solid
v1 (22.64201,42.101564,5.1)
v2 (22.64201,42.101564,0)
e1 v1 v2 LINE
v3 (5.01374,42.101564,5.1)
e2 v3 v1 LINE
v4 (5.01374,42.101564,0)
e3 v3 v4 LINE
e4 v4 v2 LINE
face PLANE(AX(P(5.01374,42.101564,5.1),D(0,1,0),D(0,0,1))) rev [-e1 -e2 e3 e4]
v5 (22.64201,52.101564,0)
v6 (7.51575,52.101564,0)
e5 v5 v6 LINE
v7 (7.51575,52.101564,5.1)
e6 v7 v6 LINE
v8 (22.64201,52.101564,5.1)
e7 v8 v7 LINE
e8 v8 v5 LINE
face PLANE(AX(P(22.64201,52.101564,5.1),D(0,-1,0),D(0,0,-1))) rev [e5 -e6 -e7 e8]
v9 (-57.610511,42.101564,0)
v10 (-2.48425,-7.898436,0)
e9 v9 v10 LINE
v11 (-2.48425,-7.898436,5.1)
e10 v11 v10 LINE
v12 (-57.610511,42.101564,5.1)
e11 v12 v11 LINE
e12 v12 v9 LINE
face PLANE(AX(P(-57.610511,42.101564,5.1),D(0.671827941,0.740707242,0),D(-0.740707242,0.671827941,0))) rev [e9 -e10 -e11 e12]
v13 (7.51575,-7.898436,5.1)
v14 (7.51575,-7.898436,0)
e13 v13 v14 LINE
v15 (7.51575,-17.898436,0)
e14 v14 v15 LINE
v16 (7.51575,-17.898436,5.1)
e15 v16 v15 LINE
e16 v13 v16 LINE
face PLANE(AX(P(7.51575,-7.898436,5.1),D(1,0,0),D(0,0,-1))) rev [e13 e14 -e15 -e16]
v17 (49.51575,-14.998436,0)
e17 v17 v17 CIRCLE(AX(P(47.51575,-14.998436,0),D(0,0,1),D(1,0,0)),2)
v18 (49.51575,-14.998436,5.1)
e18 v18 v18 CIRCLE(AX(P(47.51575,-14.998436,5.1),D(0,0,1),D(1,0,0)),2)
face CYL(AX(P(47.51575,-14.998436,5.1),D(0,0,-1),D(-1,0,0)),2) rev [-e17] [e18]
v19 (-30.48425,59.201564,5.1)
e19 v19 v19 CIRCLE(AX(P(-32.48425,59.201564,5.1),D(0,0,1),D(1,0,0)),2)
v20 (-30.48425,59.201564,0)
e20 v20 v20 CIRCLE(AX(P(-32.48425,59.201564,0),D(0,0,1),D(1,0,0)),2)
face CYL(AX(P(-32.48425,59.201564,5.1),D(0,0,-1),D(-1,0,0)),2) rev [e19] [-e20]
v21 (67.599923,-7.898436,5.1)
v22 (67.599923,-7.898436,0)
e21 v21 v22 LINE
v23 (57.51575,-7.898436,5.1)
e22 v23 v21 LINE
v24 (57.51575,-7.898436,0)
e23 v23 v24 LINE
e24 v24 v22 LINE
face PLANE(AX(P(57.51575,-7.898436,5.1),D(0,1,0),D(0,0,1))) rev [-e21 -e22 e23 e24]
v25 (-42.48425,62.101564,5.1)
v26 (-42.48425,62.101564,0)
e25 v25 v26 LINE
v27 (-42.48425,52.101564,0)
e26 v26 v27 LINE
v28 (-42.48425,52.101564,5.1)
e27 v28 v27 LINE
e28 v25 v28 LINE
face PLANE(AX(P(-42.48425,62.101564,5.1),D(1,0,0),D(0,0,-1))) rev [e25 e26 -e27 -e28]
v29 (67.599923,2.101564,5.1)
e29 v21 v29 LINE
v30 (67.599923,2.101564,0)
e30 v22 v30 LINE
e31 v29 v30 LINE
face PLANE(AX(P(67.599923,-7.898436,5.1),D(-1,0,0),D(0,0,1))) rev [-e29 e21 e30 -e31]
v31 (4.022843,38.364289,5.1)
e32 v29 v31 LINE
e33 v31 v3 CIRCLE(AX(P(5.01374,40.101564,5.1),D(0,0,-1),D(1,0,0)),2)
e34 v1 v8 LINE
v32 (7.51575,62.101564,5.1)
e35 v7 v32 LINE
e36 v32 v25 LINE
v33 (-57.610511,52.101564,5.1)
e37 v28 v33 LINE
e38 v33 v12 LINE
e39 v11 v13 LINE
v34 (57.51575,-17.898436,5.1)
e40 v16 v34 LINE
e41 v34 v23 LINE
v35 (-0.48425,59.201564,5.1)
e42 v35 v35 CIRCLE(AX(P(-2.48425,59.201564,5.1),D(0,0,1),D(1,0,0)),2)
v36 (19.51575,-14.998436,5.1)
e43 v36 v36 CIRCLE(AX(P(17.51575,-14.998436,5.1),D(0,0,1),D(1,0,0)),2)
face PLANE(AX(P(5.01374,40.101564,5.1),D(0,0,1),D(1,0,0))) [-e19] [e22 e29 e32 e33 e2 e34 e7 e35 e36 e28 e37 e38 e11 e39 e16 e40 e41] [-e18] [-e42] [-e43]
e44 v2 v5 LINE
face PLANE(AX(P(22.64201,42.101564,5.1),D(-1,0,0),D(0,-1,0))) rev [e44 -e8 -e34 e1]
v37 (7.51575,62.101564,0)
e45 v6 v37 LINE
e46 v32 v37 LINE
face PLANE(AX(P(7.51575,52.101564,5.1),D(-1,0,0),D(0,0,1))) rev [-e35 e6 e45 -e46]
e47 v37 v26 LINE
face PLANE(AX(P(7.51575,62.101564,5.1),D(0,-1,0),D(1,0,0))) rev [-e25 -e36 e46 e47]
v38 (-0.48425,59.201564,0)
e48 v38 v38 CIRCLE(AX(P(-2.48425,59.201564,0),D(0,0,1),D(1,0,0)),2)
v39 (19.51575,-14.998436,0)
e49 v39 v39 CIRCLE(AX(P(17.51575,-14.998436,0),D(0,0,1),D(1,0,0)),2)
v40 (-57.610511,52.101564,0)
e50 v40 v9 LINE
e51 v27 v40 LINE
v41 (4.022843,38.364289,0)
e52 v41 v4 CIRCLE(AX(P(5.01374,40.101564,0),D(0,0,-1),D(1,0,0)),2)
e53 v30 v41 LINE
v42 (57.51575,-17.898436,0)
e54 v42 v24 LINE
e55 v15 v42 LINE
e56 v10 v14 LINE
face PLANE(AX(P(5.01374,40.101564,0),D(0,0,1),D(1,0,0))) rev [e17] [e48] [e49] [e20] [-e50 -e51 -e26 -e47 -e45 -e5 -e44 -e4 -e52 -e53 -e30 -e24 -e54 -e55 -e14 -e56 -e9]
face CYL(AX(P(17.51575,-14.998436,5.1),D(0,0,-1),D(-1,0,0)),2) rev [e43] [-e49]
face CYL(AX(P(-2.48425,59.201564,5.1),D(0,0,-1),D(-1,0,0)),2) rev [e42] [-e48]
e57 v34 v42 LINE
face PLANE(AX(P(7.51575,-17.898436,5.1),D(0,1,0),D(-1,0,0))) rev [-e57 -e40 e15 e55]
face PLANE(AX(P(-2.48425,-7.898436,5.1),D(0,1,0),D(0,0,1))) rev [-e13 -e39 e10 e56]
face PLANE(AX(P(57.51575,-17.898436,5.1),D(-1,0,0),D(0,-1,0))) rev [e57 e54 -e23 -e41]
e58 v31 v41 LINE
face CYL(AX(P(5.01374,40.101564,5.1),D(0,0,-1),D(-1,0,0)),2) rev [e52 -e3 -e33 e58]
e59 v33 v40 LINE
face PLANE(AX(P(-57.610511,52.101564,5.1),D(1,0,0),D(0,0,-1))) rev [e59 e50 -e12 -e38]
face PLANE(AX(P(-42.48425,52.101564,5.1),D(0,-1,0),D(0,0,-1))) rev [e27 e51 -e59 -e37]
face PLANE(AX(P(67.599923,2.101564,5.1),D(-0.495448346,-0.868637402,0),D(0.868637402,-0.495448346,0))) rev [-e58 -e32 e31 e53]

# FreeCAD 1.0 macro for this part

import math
import FreeCAD as App
import Part
import Sketcher

doc = App.newDocument("Part")
body = doc.addObject("PartDesign::Body", "Body")

# Sketch on XY plane
sketch1 = doc.addObject("Sketcher::SketchObject", "Sketch")
body.addObject(sketch1)
sketch1.AttachmentSupport = (doc.XY_Plane, [""])
sketch1.MapMode = "FlatFace"
sketch1.addGeometry(Part.LineSegment(App.Vector(-42.48425, 62.101564, 0), App.Vector(-42.48425, 52.101564, 0)), False)
sketch1.addGeometry(Part.LineSegment(App.Vector(-42.48425, 52.101564, 0), App.Vector(-57.610511, 52.101564, 0)), False)
sketch1.addGeometry(Part.LineSegment(App.Vector(-57.610511, 52.101564, 0), App.Vector(-57.610511, 42.101564, 0)), False)
sketch1.addGeometry(Part.LineSegment(App.Vector(-57.610511, 42.101564, 0), App.Vector(-2.48425, -7.898436, 0)), False)
sketch1.addGeometry(Part.LineSegment(App.Vector(-2.48425, -7.898436, 0), App.Vector(7.51575, -7.898436, 0)), False)
sketch1.addGeometry(Part.LineSegment(App.Vector(7.51575, -7.898436, 0), App.Vector(7.51575, -17.898436, 0)), False)
sketch1.addGeometry(Part.LineSegment(App.Vector(7.51575, -17.898436, 0), App.Vector(57.51575, -17.898436, 0)), False)
sketch1.addGeometry(Part.LineSegment(App.Vector(57.51575, -17.898436, 0), App.Vector(57.51575, -7.898436, 0)), False)
sketch1.addGeometry(Part.LineSegment(App.Vector(57.51575, -7.898436, 0), App.Vector(67.599923, -7.898436, 0)), False)
sketch1.addGeometry(Part.LineSegment(App.Vector(67.599923, -7.898436, 0), App.Vector(67.599923, 2.101564, 0)), False)
sketch1.addGeometry(Part.LineSegment(App.Vector(67.599923, 2.101564, 0), App.Vector(4.022843, 38.364289, 0)), False)
sketch1.addGeometry(Part.ArcOfCircle(Part.Circle(App.Vector(5.01374, 40.101564, 0), App.Vector(0, 0, 1), 2), math.radians(90), math.radians(240.300681)), False)
sketch1.addGeometry(Part.LineSegment(App.Vector(5.01374, 42.101564, 0), App.Vector(22.64201, 42.101564, 0)), False)
sketch1.addGeometry(Part.LineSegment(App.Vector(22.64201, 42.101564, 0), App.Vector(22.64201, 52.101564, 0)), False)
sketch1.addGeometry(Part.LineSegment(App.Vector(22.64201, 52.101564, 0), App.Vector(7.51575, 52.101564, 0)), False)
sketch1.addGeometry(Part.LineSegment(App.Vector(7.51575, 52.101564, 0), App.Vector(7.51575, 62.101564, 0)), False)
sketch1.addGeometry(Part.LineSegment(App.Vector(7.51575, 62.101564, 0), App.Vector(-42.48425, 62.101564, 0)), False)
sketch1.addGeometry(Part.Circle(App.Vector(17.51575, -14.998436, 0), App.Vector(0, 0, 1), 2), False)
sketch1.addGeometry(Part.Circle(App.Vector(47.51575, -14.998436, 0), App.Vector(0, 0, 1), 2), False)
sketch1.addGeometry(Part.Circle(App.Vector(-32.48425, 59.201564, 0), App.Vector(0, 0, 1), 2), False)
sketch1.addGeometry(Part.Circle(App.Vector(-2.48425, 59.201564, 0), App.Vector(0, 0, 1), 2), False)
sketch1.addConstraint(Sketcher.Constraint("Coincident", 0, 2, 1, 1))
sketch1.addConstraint(Sketcher.Constraint("Coincident", 1, 2, 2, 1))
sketch1.addConstraint(Sketcher.Constraint("Coincident", 2, 2, 3, 1))
sketch1.addConstraint(Sketcher.Constraint("Coincident", 3, 2, 4, 1))
sketch1.addConstraint(Sketcher.Constraint("Coincident", 4, 2, 5, 1))
sketch1.addConstraint(Sketcher.Constraint("Coincident", 5, 2, 6, 1))
sketch1.addConstraint(Sketcher.Constraint("Coincident", 6, 2, 7, 1))
sketch1.addConstraint(Sketcher.Constraint("Coincident", 7, 2, 8, 1))
sketch1.addConstraint(Sketcher.Constraint("Coincident", 8, 2, 9, 1))
sketch1.addConstraint(Sketcher.Constraint("Coincident", 9, 2, 10, 1))
sketch1.addConstraint(Sketcher.Constraint("Tangent", 10, 2, 11, 2))
sketch1.addConstraint(Sketcher.Constraint("Tangent", 11, 1, 12, 1))
sketch1.addConstraint(Sketcher.Constraint("Coincident", 12, 2, 13, 1))
sketch1.addConstraint(Sketcher.Constraint("Coincident", 13, 2, 14, 1))
sketch1.addConstraint(Sketcher.Constraint("Coincident", 14, 2, 15, 1))
sketch1.addConstraint(Sketcher.Constraint("Coincident", 15, 2, 16, 1))
sketch1.addConstraint(Sketcher.Constraint("Coincident", 16, 2, 0, 1))
sketch1.addConstraint(Sketcher.Constraint("Vertical", 0))
sketch1.addConstraint(Sketcher.Constraint("Horizontal", 1))
sketch1.addConstraint(Sketcher.Constraint("Vertical", 2))
sketch1.addConstraint(Sketcher.Constraint("Horizontal", 4))
sketch1.addConstraint(Sketcher.Constraint("Vertical", 5))
sketch1.addConstraint(Sketcher.Constraint("Horizontal", 6))
sketch1.addConstraint(Sketcher.Constraint("Vertical", 7))
sketch1.addConstraint(Sketcher.Constraint("Horizontal", 8))
sketch1.addConstraint(Sketcher.Constraint("Vertical", 9))
sketch1.addConstraint(Sketcher.Constraint("Horizontal", 12))
sketch1.addConstraint(Sketcher.Constraint("Vertical", 13))
sketch1.addConstraint(Sketcher.Constraint("Horizontal", 14))
sketch1.addConstraint(Sketcher.Constraint("Vertical", 15))
sketch1.addConstraint(Sketcher.Constraint("Horizontal", 16))
sketch1.addConstraint(Sketcher.Constraint("Equal", 11, 17))
sketch1.addConstraint(Sketcher.Constraint("Equal", 17, 18))
sketch1.addConstraint(Sketcher.Constraint("Equal", 18, 19))
sketch1.addConstraint(Sketcher.Constraint("Equal", 19, 20))
sketch1.addConstraint(Sketcher.Constraint("Horizontal", 17, 3, 18, 3))
sketch1.addConstraint(Sketcher.Constraint("Horizontal", 19, 3, 20, 3))
sketch1.addConstraint(Sketcher.Constraint("Horizontal", 4, 2, 7, 2))
sketch1.addConstraint(Sketcher.Constraint("Horizontal", 2, 2, 11, 1))
sketch1.addConstraint(Sketcher.Constraint("Horizontal", 1, 2, 13, 2))
sketch1.addConstraint(Sketcher.Constraint("Vertical", 20, 3, 3, 2))
sketch1.addConstraint(Sketcher.Constraint("Vertical", 5, 2, 14, 2))
sketch1.addConstraint(Sketcher.Constraint("Equal", 1, 14))
sketch1.addConstraint(Sketcher.Constraint("Equal", 6, 16))
sketch1.addConstraint(Sketcher.Constraint("Equal", 4, 0))
sketch1.addConstraint(Sketcher.Constraint("Equal", 0, 2))
sketch1.addConstraint(Sketcher.Constraint("Equal", 2, 5))
sketch1.addConstraint(Sketcher.Constraint("Equal", 7, 9))
sketch1.addConstraint(Sketcher.Constraint("Diameter", 17, 4.0))
sketch1.addConstraint(Sketcher.Constraint("DistanceX", 4, 1, 4, 2, 10.0))
sketch1.addConstraint(Sketcher.Constraint("DistanceX", 6, 1, 6, 2, 50.0))
sketch1.addConstraint(Sketcher.Constraint("DistanceX", 17, 3, 18, 3, 30.0))
sketch1.addConstraint(Sketcher.Constraint("DistanceX", 19, 3, 17, 3, 50.0))
sketch1.addConstraint(Sketcher.Constraint("DistanceX", 19, 3, 20, 3, 30.0))
sketch1.addConstraint(Sketcher.Constraint("DistanceY", 3, 2, 11, 3, 48.0))
sketch1.addConstraint(Sketcher.Constraint("DistanceY", 17, 3, 11, 3, 55.1))
sketch1.addConstraint(Sketcher.Constraint("DistanceY", 11, 3, 19, 3, 19.1))
sketch1.addConstraint(Sketcher.Constraint("DistanceX", 1, 2, 1, 1, 15.126261))
sketch1.addConstraint(Sketcher.Constraint("DistanceX", 12, 1, 12, 2, 17.628271))
sketch1.addConstraint(Sketcher.Constraint("DistanceX", 8, 1, 8, 2, 10.084174))
sketch1.addConstraint(Sketcher.Constraint("DistanceX", -1, 1, 11, 3, 5.01374))
sketch1.addConstraint(Sketcher.Constraint("DistanceY", -1, 1, 10, 2, 38.364289))
pad1 = doc.addObject("PartDesign::Pad", "Pad")
body.addObject(pad1)
pad1.Profile = sketch1
pad1.Length = 5.1

doc.recompute()
